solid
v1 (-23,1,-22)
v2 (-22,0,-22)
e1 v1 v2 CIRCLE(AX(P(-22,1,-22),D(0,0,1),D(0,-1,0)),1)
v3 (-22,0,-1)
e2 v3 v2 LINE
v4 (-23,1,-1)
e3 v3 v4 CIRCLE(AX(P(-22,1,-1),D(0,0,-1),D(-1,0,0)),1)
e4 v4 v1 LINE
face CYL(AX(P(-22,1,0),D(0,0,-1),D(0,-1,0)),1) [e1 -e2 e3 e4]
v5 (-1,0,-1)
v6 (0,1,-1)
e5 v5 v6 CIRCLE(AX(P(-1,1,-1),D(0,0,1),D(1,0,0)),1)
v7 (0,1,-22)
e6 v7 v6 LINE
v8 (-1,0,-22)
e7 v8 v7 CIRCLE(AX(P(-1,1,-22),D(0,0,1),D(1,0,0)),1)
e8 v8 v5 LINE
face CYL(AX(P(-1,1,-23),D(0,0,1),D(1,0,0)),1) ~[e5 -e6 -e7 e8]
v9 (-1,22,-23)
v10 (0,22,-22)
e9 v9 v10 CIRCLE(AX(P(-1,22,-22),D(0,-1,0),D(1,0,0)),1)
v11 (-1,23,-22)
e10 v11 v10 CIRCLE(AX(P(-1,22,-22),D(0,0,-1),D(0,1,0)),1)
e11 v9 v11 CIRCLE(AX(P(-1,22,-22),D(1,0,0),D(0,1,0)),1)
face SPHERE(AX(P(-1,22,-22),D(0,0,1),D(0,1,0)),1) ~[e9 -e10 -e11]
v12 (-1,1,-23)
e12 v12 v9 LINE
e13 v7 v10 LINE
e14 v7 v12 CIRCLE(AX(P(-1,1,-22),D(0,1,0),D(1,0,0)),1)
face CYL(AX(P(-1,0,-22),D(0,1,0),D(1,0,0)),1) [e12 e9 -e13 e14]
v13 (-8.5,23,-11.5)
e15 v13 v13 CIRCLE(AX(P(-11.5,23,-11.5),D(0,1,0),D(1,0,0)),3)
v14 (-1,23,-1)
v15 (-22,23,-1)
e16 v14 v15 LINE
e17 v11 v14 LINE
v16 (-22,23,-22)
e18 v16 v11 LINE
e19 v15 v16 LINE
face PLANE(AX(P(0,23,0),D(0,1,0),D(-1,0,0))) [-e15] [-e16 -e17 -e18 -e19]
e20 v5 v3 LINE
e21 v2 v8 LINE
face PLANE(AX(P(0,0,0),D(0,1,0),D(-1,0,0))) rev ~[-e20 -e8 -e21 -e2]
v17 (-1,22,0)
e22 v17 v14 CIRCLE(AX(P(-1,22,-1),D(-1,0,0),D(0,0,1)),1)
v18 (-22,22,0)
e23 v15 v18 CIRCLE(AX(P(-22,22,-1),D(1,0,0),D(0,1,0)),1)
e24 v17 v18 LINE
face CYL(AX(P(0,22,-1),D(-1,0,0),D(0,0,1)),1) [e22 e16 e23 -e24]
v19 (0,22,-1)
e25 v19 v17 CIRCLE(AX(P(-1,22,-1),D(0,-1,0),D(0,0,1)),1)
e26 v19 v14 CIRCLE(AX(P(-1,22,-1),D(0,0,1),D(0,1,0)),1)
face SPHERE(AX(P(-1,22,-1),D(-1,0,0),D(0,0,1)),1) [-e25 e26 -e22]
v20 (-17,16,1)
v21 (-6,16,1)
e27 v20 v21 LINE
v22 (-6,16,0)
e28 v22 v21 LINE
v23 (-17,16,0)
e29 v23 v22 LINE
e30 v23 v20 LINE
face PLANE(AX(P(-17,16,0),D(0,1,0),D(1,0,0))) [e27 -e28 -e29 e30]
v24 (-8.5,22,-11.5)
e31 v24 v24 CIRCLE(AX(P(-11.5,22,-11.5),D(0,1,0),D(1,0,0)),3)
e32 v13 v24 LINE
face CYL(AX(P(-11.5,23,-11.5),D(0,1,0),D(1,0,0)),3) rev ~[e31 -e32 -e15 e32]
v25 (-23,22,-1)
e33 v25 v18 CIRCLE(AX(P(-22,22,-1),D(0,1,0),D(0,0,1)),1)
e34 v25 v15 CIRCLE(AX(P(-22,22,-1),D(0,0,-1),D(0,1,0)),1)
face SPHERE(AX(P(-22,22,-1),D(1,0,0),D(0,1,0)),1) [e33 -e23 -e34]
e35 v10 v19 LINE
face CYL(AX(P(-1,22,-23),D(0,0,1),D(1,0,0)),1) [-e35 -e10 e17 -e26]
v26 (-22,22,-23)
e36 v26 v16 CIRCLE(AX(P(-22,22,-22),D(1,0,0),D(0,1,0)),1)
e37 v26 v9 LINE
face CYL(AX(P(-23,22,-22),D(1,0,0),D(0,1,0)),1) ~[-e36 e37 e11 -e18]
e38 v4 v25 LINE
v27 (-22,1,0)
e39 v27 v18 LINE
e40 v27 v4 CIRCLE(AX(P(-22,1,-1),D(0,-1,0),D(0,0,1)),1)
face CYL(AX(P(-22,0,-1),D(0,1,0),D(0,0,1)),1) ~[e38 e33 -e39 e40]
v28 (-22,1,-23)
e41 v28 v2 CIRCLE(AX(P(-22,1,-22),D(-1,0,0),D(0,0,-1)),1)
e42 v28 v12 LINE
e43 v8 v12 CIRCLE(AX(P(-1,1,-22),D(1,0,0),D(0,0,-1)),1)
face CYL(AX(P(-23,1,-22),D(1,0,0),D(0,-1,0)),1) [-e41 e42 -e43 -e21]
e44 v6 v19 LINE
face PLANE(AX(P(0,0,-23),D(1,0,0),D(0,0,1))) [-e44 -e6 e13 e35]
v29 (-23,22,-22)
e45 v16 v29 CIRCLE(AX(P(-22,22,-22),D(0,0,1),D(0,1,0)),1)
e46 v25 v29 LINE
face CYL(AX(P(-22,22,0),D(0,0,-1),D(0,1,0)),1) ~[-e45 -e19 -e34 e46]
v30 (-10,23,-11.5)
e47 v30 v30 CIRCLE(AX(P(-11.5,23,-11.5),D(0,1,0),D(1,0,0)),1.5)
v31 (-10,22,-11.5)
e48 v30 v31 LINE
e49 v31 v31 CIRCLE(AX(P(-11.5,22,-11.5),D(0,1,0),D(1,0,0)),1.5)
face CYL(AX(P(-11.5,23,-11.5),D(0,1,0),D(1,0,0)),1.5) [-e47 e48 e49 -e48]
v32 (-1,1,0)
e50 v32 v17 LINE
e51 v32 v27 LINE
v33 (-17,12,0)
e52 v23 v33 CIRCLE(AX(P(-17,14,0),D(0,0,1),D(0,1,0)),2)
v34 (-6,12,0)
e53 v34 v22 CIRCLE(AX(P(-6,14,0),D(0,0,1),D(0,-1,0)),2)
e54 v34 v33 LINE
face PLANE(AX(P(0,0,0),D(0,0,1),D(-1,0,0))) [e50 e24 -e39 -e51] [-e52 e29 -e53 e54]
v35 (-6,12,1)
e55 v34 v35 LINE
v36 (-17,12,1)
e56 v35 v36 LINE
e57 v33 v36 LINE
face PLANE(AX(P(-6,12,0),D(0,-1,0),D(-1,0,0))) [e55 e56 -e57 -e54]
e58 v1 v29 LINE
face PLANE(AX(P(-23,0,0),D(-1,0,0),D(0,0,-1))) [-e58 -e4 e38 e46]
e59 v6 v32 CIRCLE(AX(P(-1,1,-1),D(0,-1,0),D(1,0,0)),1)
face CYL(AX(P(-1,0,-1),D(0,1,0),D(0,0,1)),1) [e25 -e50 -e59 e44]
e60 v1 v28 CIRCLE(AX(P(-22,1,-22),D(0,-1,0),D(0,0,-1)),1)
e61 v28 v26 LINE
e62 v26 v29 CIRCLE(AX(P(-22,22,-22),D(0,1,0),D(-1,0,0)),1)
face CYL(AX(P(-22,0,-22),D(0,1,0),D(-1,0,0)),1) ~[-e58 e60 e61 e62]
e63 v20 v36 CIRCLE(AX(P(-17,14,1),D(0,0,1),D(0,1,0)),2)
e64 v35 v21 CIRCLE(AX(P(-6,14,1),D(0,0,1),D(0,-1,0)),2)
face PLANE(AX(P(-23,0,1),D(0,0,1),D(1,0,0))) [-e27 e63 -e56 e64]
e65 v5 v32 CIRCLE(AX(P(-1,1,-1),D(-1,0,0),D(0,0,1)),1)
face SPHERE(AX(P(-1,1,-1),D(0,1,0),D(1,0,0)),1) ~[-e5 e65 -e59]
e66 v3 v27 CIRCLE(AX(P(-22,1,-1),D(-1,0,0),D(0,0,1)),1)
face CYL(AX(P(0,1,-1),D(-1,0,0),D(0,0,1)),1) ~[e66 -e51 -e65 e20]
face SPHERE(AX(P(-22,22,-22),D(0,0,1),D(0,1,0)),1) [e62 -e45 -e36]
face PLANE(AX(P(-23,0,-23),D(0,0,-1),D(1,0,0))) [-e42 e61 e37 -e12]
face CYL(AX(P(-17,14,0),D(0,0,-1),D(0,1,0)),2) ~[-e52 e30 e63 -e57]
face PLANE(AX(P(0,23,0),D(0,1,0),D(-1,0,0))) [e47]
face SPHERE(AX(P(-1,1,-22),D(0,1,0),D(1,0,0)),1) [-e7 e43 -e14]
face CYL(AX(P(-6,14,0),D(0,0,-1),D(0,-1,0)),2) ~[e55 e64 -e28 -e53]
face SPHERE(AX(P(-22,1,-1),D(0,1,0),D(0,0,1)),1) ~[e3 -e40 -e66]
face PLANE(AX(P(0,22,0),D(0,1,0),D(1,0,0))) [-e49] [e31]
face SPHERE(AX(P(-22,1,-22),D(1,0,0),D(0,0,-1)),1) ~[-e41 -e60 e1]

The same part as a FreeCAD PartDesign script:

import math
import FreeCAD as App
import Part
import Sketcher

V = App.Vector
Q = App.Units.Quantity


def edges_at(feature, points):
    """Names of the edges that pass closest to the given points."""
    edges = feature.Shape.Edges
    near = lambda p: min(range(len(edges)), key=lambda i: edges[i].distToShape(Part.Vertex(*p))[0])
    return sorted({f"Edge{near(p) + 1}" for p in points})

doc = App.newDocument("Part")
params = doc.addObject("Spreadsheet::Sheet", "Params")
for row, (alias, value) in enumerate([
    ("sketch1_width", "23 mm"),
    ("pad1_length", "23 mm"),
    ("sketch2_diameter", "6 mm"),
    ("sketch2_diameter2", "3 mm"),
    ("pocket1_length", "1 mm"),
    ("sketch3_radius", "2 mm"),
    ("sketch3_width", "11 mm"),
    ("pad2_length", "1 mm"),
    ("fillet_radius", "1 mm"),
], start=1):
    params.set(f"A{row}", alias)
    params.set(f"B{row}", "=" + value)
    params.setAlias(f"B{row}", alias)

body = doc.addObject("PartDesign::Body", "Body")

sketch1 = body.newObject("Sketcher::SketchObject", "Sketch")
sketch1.AttachmentSupport = (doc.getObject("XZ_Plane"), [""])
sketch1.MapMode = "FlatFace"
sketch1.addGeometry([
    Part.LineSegment(V(-23, 0, 0), V(0, 0, 0)),
    Part.LineSegment(V(0, 0, 0), V(0, -23, 0)),
    Part.LineSegment(V(0, -23, 0), V(-23, -23, 0)),
    Part.LineSegment(V(-23, -23, 0), V(-23, 0, 0)),
], False)
sketch1.addConstraint([
    Sketcher.Constraint("Coincident", 0, 2, 1, 1),
    Sketcher.Constraint("Coincident", 1, 2, 2, 1),
    Sketcher.Constraint("Coincident", 2, 2, 3, 1),
    Sketcher.Constraint("Coincident", 3, 2, 0, 1),
    Sketcher.Constraint("Horizontal", 0),
    Sketcher.Constraint("Vertical", 1),
    Sketcher.Constraint("Horizontal", 2),
    Sketcher.Constraint("Vertical", 3),
    Sketcher.Constraint("Coincident", 0, 2, -1, 1),
    Sketcher.Constraint("Equal", 2, 1),
    Sketcher.Constraint("DistanceX", 0, 1, 0, 2, Q("23 mm")),
])
sketch1.setExpression("Constraints[10]", "Params.sketch1_width")
pad1 = body.newObject("PartDesign::Pad", "Pad")
pad1.Profile = sketch1
pad1.setExpression("Length", "Params.pad1_length")
pad1.Reversed = True

sketch2 = body.newObject("Sketcher::SketchObject", "Sketch001")
sketch2.AttachmentSupport = (doc.getObject("XZ_Plane"), [""])
sketch2.MapMode = "FlatFace"
sketch2.AttachmentOffset = App.Placement(V(0, 0, -23), App.Rotation())
sketch2.addGeometry([
    Part.Circle(V(-11.5, -11.5, 0), V(0, 0, 1), 3),
    Part.Circle(V(-11.5, -11.5, 0), V(0, 0, 1), 1.5),
], False)
sketch2.addConstraint([
    Sketcher.Constraint("Coincident", 1, 3, 0, 3),
    Sketcher.Constraint("Diameter", 0, Q("6 mm")),
    Sketcher.Constraint("Diameter", 1, Q("3 mm")),
    Sketcher.Constraint("DistanceX", 0, 3, -1, 1, Q("11.5 mm")),
    Sketcher.Constraint("DistanceY", 0, 3, -1, 1, Q("11.5 mm")),
])
sketch2.setExpression("Constraints[1]", "Params.sketch2_diameter")
sketch2.setExpression("Constraints[2]", "Params.sketch2_diameter2")
pocket1 = body.newObject("PartDesign::Pocket", "Pocket")
pocket1.Profile = sketch2
pocket1.setExpression("Length", "Params.pocket1_length")
pocket1.Reversed = True

sketch3 = body.newObject("Sketcher::SketchObject", "Sketch002")
sketch3.AttachmentSupport = (doc.getObject("XY_Plane"), [""])
sketch3.MapMode = "FlatFace"
sketch3.addGeometry([
    Part.LineSegment(V(-6, 16, 0), V(-17, 16, 0)),
    Part.ArcOfCircle(Part.Circle(V(-17, 14, 0), V(0, 0, 1), 2), math.radians(90), math.radians(270)),
    Part.LineSegment(V(-17, 12, 0), V(-6, 12, 0)),
    Part.ArcOfCircle(Part.Circle(V(-6, 14, 0), V(0, 0, 1), 2), math.radians(-90), math.radians(90)),
], False)
sketch3.addConstraint([
    Sketcher.Constraint("Tangent", 0, 2, 1, 1),
    Sketcher.Constraint("Tangent", 1, 2, 2, 1),
    Sketcher.Constraint("Tangent", 2, 2, 3, 1),
    Sketcher.Constraint("Tangent", 3, 2, 0, 1),
    Sketcher.Constraint("Horizontal", 0),
    Sketcher.Constraint("Horizontal", 2),
    Sketcher.Constraint("Radius", 1, Q("2 mm")),
    Sketcher.Constraint("DistanceX", 3, 3, -1, 1, Q("6 mm")),
    Sketcher.Constraint("DistanceX", 0, 2, 0, 1, Q("11 mm")),
    Sketcher.Constraint("DistanceY", -1, 1, 1, 3, Q("14 mm")),
])
sketch3.setExpression("Constraints[6]", "Params.sketch3_radius")
sketch3.setExpression("Constraints[8]", "Params.sketch3_width")
pad2 = body.newObject("PartDesign::Pad", "Pad001")
pad2.Profile = sketch3
pad2.setExpression("Length", "Params.pad2_length")
doc.recompute()

fillet = body.newObject("PartDesign::Fillet", "Fillet")
fillet.Base = (pad2, edges_at(pad2, [
    (-11.5, 23, 0),
    (0, 11.5, 0),
    (0, 23, -11.5),
    (-23, 23, -11.5),
    (-11.5, 23, -23),
    (-23, 11.5, 0),
    (0, 11.5, -23),
    (0, 0, -11.5),
    (-11.5, 0, 0),
    (-11.5, 0, -23),
    (-23, 11.5, -23),
    (-23, 0, -11.5),
]))
fillet.setExpression("Radius", "Params.fillet_radius")

doc.recompute()
